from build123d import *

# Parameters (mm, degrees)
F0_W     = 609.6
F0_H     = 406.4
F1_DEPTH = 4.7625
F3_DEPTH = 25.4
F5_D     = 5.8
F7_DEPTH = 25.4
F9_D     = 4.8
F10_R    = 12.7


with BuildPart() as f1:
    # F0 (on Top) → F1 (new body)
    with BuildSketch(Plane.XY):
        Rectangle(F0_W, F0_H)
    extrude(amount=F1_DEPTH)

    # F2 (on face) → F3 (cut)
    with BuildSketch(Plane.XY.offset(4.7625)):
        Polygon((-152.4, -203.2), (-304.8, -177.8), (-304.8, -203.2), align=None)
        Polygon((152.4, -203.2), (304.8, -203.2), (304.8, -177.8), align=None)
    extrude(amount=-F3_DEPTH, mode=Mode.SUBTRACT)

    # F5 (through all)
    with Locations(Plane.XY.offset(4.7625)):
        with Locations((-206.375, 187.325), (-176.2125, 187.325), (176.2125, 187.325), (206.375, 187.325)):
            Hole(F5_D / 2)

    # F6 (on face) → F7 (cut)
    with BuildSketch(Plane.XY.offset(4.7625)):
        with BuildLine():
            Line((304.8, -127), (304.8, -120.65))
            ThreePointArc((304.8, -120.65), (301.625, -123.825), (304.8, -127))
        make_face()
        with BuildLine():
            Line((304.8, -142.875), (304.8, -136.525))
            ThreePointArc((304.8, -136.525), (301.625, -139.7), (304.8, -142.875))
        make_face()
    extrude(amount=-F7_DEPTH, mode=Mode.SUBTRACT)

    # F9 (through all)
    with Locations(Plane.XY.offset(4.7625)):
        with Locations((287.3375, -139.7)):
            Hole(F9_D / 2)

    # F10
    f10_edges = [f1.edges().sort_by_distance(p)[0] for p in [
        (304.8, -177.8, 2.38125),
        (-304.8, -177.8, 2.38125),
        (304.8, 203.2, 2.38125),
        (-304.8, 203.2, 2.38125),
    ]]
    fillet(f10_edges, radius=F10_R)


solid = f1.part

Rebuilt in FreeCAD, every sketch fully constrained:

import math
import FreeCAD as App
import Part
import Sketcher
from FreeCAD import Vector
Q = App.Units.Quantity


def edges_at(feature, points):
    """Names of the edges that pass closest to the given points."""
    edges = feature.Shape.Edges
    near = lambda p: min(range(len(edges)), key=lambda i: edges[i].distToShape(Part.Vertex(*p))[0])
    return sorted({f"Edge{near(p) + 1}" for p in points})


def add_polygon(sketch, points):
    """Adds a closed chain of lines whose ends are joined by coincident constraints."""
    first, n = sketch.GeometryCount, len(points)
    for a, b in zip(points, points[1:] + points[:1]):
        sketch.addGeometry(Part.LineSegment(App.Vector(*a, 0), App.Vector(*b, 0)), False)
    for i in range(n):
        sketch.addConstraint(Sketcher.Constraint("Coincident", first + i, 2, first + (i + 1) % n, 1))

doc = App.newDocument("Part")
body = doc.addObject("PartDesign::Body", "Body")

# Sketch on XY plane
sketch1 = body.newObject("Sketcher::SketchObject", "Sketch")
sketch1.AttachmentSupport = (doc.getObject("XY_Plane"), [""])
sketch1.MapMode = "FlatFace"
add_polygon(sketch1, [(-305, 203), (-305, -203), (305, -203), (305, 203)])  # lines 0-3
sketch1.addConstraint([
    Sketcher.Constraint("Vertical", 0),
    Sketcher.Constraint("Horizontal", 1),
    Sketcher.Constraint("Vertical", 2),
    Sketcher.Constraint("Horizontal", 3),
    Sketcher.Constraint("Symmetric", 0, 2, 2, 2, -1, 1),
    Sketcher.Constraint("DistanceX", 1, 1, 1, 2, Q("24 in")),
    Sketcher.Constraint("DistanceY", 0, 2, 0, 1, Q("16 in")),
])
pad1 = body.newObject("PartDesign::Pad", "Pad")
pad1.Profile = sketch1
pad1.Length = Q("0.1875 in")

# Sketch on XY plane
sketch2 = body.newObject("Sketcher::SketchObject", "Sketch001")
sketch2.AttachmentSupport = (doc.getObject("XY_Plane"), [""])
sketch2.MapMode = "FlatFace"
sketch2.AttachmentOffset = App.Placement(Vector(0, 0, 0.1875 * 25.4), App.Rotation())
add_polygon(sketch2, [(-152, -203), (-305, -178), (-305, -203)])  # lines 0-2
add_polygon(sketch2, [(152, -203), (305, -203), (305, -178)])  # lines 3-5
sketch2.addConstraint([
    Sketcher.Constraint("Vertical", 1),
    Sketcher.Constraint("Horizontal", 2),
    Sketcher.Constraint("Horizontal", 3),
    Sketcher.Constraint("Vertical", 4),
    Sketcher.Constraint("Symmetric", 1, 2, 3, 2, -2),
    Sketcher.Constraint("Horizontal", 0, 2, 4, 2),
    Sketcher.Constraint("Equal", 2, 3),
    Sketcher.Constraint("DistanceX", 2, 1, 2, 2, Q("6 in")),
    Sketcher.Constraint("DistanceY", 1, 2, 1, 1, Q("1 in")),
    Sketcher.Constraint("DistanceX", 0, 2, -1, 1, Q("12 in")),
    Sketcher.Constraint("DistanceY", 0, 2, -1, 1, Q("7 in")),
])
pocket1 = body.newObject("PartDesign::Pocket", "Pocket")
pocket1.Profile = sketch2
pocket1.Length = Q("1 in")

# Sketch on XY plane
sketch3 = body.newObject("Sketcher::SketchObject", "Sketch002")
sketch3.AttachmentSupport = (doc.getObject("XY_Plane"), [""])
sketch3.MapMode = "FlatFace"
sketch3.AttachmentOffset = App.Placement(Vector(0, 0, 0.1875 * 25.4), App.Rotation())
sketch3.addGeometry([
    Part.Circle(Vector(-206.4, 187.3, 0), Vector(0, 0, 1), 2.9),
    Part.Circle(Vector(-176.2, 187.3, 0), Vector(0, 0, 1), 2.9),
    Part.Circle(Vector(176.2, 187.3, 0), Vector(0, 0, 1), 2.9),
    Part.Circle(Vector(206.4, 187.3, 0), Vector(0, 0, 1), 2.9),
], False)
sketch3.addConstraint([
    Sketcher.Constraint("Equal", 0, 1),
    Sketcher.Constraint("Equal", 1, 2),
    Sketcher.Constraint("Equal", 2, 3),
    Sketcher.Constraint("Symmetric", 1, 3, 2, 3, -2),
    Sketcher.Constraint("Symmetric", 0, 3, 3, 3, -2),
    Sketcher.Constraint("Horizontal", 0, 3, 1, 3),
    Sketcher.Constraint("Diameter", 0, Q("5.8 mm")),
    Sketcher.Constraint("DistanceX", 0, 3, 3, 3, Q("16.25 in")),
    Sketcher.Constraint("DistanceY", -1, 1, 0, 3, Q("7.375 in")),
    Sketcher.Constraint("DistanceX", 1, 3, -1, 1, Q("6.9375 in")),
])
doc.recompute()
hole = body.newObject("PartDesign::Hole", "Hole")
hole.Profile = sketch3
hole.ThreadType = "None"
hole.Diameter = 5.8
hole.DepthType = "ThroughAll"

# Sketch on XY plane
sketch4 = body.newObject("Sketcher::SketchObject", "Sketch003")
sketch4.AttachmentSupport = (doc.getObject("XY_Plane"), [""])
sketch4.MapMode = "FlatFace"
sketch4.AttachmentOffset = App.Placement(Vector(0, 0, 0.1875 * 25.4), App.Rotation())
sketch4.addGeometry([
    Part.LineSegment(Vector(304.8, -127, 0), Vector(304.8, -120.7, 0)),
    Part.ArcOfCircle(Part.Circle(Vector(304.8, -123.8, 0), Vector(0, 0, 1), 3.2), math.radians(90), math.radians(270)),
    Part.LineSegment(Vector(304.8, -142.9, 0), Vector(304.8, -136.5, 0)),
    Part.ArcOfCircle(Part.Circle(Vector(304.8, -139.7, 0), Vector(0, 0, 1), 3.2), math.radians(90), math.radians(270)),
], False)
sketch4.addConstraint([
    Sketcher.Constraint("Coincident", 0, 1, 1, 2),
    Sketcher.Constraint("Coincident", 1, 1, 0, 2),
    Sketcher.Constraint("Coincident", 2, 1, 3, 2),
    Sketcher.Constraint("Coincident", 3, 1, 2, 2),
    Sketcher.Constraint("Vertical", 0),
    Sketcher.Constraint("Vertical", 2),
    Sketcher.Constraint("Equal", 1, 3),
    Sketcher.Constraint("Vertical", 1, 3, 3, 3),
    Sketcher.Constraint("Vertical", 3, 3, 0, 1),
    Sketcher.Constraint("Vertical", 1, 1, 2, 1),
    Sketcher.Constraint("DistanceX", -1, 1, 1, 3, Q("12 in")),
    Sketcher.Constraint("DistanceY", 0, 1, -1, 1, Q("5 in")),
    Sketcher.Constraint("Radius", 1, Q("0.125 in")),
    Sketcher.Constraint("DistanceY", 3, 3, -1, 1, Q("5.5 in")),
])
pocket2 = body.newObject("PartDesign::Pocket", "Pocket001")
pocket2.Profile = sketch4
pocket2.Length = Q("1 in")

# Sketch on XY plane
sketch5 = body.newObject("Sketcher::SketchObject", "Sketch004")
sketch5.AttachmentSupport = (doc.getObject("XY_Plane"), [""])
sketch5.MapMode = "FlatFace"
sketch5.AttachmentOffset = App.Placement(Vector(0, 0, 0.1875 * 25.4), App.Rotation())
sketch5.addGeometry(Part.Circle(Vector(287.3, -139.7, 0), Vector(0, 0, 1), 2.4), False)
sketch5.addConstraint([
    Sketcher.Constraint("DistanceY", 0, 3, -1, 1, Q("5.5 in")),
    Sketcher.Constraint("Diameter", 0, Q("4.8 mm")),
    Sketcher.Constraint("DistanceX", -1, 1, 0, 3, Q("11.3125 in")),
])
doc.recompute()
hole2 = body.newObject("PartDesign::Hole", "Hole001")
hole2.Profile = sketch5
hole2.ThreadType = "None"
hole2.Diameter = 4.8
hole2.DepthType = "ThroughAll"
doc.recompute()

fillet = body.newObject("PartDesign::Fillet", "Fillet")
fillet.Base = (hole2, edges_at(hole2, [
    (304.8, -177.8, 2.381),
    (-304.8, -177.8, 2.381),
    (304.8, 203.2, 2.381),
    (-304.8, 203.2, 2.381),
]))
fillet.Radius = Q("0.5 in")

doc.recompute()
